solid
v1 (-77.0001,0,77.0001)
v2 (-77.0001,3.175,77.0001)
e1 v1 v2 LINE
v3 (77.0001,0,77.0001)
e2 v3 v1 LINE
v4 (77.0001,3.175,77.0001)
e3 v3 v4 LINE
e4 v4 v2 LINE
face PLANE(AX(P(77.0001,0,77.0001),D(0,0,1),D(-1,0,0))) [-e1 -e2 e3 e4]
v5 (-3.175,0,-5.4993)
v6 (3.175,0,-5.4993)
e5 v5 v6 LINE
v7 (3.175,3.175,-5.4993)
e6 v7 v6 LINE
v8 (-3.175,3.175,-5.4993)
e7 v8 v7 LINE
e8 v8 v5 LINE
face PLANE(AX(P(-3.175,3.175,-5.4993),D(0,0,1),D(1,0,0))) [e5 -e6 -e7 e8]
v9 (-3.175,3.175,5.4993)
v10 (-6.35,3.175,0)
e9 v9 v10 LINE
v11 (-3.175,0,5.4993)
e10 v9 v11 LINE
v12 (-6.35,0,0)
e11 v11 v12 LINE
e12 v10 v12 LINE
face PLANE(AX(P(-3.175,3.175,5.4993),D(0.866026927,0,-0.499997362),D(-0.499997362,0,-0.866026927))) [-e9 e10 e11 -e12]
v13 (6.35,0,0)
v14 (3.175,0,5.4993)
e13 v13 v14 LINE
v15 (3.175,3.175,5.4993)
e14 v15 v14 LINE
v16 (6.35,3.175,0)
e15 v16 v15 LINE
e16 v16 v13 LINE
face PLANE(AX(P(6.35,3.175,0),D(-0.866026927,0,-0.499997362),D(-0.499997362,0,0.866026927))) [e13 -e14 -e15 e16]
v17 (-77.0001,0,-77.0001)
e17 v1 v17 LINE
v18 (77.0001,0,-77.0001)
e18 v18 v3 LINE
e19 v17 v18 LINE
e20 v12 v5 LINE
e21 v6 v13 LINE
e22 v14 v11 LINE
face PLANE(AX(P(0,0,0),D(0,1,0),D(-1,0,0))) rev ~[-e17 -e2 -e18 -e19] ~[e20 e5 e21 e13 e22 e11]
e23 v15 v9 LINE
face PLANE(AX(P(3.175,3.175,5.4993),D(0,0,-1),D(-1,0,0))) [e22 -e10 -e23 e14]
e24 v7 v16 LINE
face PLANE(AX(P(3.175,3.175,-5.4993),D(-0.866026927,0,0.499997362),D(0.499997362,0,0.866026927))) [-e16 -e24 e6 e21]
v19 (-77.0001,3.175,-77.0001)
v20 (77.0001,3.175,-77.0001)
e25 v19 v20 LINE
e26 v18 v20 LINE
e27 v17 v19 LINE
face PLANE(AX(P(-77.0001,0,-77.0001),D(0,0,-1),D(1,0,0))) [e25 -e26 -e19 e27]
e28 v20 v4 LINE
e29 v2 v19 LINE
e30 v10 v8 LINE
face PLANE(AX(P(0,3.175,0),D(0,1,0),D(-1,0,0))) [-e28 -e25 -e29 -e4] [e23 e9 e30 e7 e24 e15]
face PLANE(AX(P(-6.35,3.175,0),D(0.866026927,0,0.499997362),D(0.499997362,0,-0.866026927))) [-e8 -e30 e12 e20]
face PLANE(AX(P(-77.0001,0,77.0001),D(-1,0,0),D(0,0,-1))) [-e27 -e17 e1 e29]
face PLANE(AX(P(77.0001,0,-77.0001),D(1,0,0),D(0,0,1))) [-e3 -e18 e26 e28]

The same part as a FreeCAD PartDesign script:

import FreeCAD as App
import Part
import Sketcher
from FreeCAD import Vector
Q = App.Units.Quantity

doc = App.newDocument("Part")
body = doc.addObject("PartDesign::Body", "Body")

# Sketch on XZ plane
sketch1 = body.newObject("Sketcher::SketchObject", "Sketch")
sketch1.AttachmentSupport = (doc.getObject("XZ_Plane"), [""])
sketch1.MapMode = "FlatFace"
sketch1.addGeometry([
    Part.LineSegment(Vector(-77.0001, 77.0001, 0), Vector(77.0001, 77.0001, 0)),
    Part.LineSegment(Vector(77.0001, 77.0001, 0), Vector(77.0001, -77.0001, 0)),
    Part.LineSegment(Vector(77.0001, -77.0001, 0), Vector(-77.0001, -77.0001, 0)),
    Part.LineSegment(Vector(-77.0001, -77.0001, 0), Vector(-77.0001, 77.0001, 0)),
], False)
sketch1.addConstraint([
    Sketcher.Constraint("Coincident", 0, 2, 1, 1),
    Sketcher.Constraint("Coincident", 1, 2, 2, 1),
    Sketcher.Constraint("Coincident", 2, 2, 3, 1),
    Sketcher.Constraint("Coincident", 3, 2, 0, 1),
    Sketcher.Constraint("Horizontal", 0),
    Sketcher.Constraint("Vertical", 1),
    Sketcher.Constraint("Horizontal", 2),
    Sketcher.Constraint("Vertical", 3),
    Sketcher.Constraint("Symmetric", 0, 2, 2, 2, -1, 1),
    Sketcher.Constraint("Equal", 2, 1),
    Sketcher.Constraint("DistanceX", 0, 1, 0, 2, Q("6.063 in")),
])
pad1 = body.newObject("PartDesign::Pad", "Pad")
pad1.Profile = sketch1
pad1.Length = Q("0.125 in")
pad1.Reversed = True

# Sketch on XZ plane
sketch2 = body.newObject("Sketcher::SketchObject", "Sketch001")
sketch2.AttachmentSupport = (doc.getObject("XZ_Plane"), [""])
sketch2.MapMode = "FlatFace"
sketch2.AttachmentOffset = App.Placement(Vector(0, 0, -0.125 * 25.4), App.Rotation())
sketch2.addGeometry([
    Part.LineSegment(Vector(-3.175, -5.4993, 0), Vector(-6.35, 0, 0)),  # 0
    Part.LineSegment(Vector(-6.35, 0, 0), Vector(-3.175, 5.4993, 0)),  # 1
    Part.LineSegment(Vector(-3.175, 5.4993, 0), Vector(3.175, 5.4993, 0)),  # 2
    Part.LineSegment(Vector(3.175, 5.4993, 0), Vector(6.35, 0, 0)),  # 3
    Part.LineSegment(Vector(6.35, 0, 0), Vector(3.175, -5.4993, 0)),  # 4
    Part.LineSegment(Vector(3.175, -5.4993, 0), Vector(-3.175, -5.4993, 0)),  # 5
], False)
sketch2.addConstraint([
    Sketcher.Constraint("Coincident", 0, 2, 1, 1),
    Sketcher.Constraint("Coincident", 1, 2, 2, 1),
    Sketcher.Constraint("Coincident", 2, 2, 3, 1),
    Sketcher.Constraint("Coincident", 3, 2, 4, 1),
    Sketcher.Constraint("Coincident", 4, 2, 5, 1),
    Sketcher.Constraint("Coincident", 5, 2, 0, 1),
    Sketcher.Constraint("Horizontal", 2),
    Sketcher.Constraint("Horizontal", 5),
    Sketcher.Constraint("Symmetric", 0, 2, 3, 2, -1, 1),
    Sketcher.Constraint("Symmetric", 1, 2, 4, 2, -1, 1),
    Sketcher.Constraint("PointOnObject", 0, 2, -1),
    Sketcher.Constraint("Parallel", 0, 3),
    Sketcher.Constraint("Vertical", 2, 2, 4, 2),
    Sketcher.Constraint("DistanceX", 2, 1, 2, 2, Q("0.25 in")),
    Sketcher.Constraint("Distance", 0, Q("0.25 in")),
    Sketcher.Constraint("DistanceX", 0, 2, -1, 1, Q("0.25 in")),
])
pocket1 = body.newObject("PartDesign::Pocket", "Pocket")
pocket1.Profile = sketch2
pocket1.Length = Q("0.125 in")
pocket1.Reversed = True

doc.recompute()
